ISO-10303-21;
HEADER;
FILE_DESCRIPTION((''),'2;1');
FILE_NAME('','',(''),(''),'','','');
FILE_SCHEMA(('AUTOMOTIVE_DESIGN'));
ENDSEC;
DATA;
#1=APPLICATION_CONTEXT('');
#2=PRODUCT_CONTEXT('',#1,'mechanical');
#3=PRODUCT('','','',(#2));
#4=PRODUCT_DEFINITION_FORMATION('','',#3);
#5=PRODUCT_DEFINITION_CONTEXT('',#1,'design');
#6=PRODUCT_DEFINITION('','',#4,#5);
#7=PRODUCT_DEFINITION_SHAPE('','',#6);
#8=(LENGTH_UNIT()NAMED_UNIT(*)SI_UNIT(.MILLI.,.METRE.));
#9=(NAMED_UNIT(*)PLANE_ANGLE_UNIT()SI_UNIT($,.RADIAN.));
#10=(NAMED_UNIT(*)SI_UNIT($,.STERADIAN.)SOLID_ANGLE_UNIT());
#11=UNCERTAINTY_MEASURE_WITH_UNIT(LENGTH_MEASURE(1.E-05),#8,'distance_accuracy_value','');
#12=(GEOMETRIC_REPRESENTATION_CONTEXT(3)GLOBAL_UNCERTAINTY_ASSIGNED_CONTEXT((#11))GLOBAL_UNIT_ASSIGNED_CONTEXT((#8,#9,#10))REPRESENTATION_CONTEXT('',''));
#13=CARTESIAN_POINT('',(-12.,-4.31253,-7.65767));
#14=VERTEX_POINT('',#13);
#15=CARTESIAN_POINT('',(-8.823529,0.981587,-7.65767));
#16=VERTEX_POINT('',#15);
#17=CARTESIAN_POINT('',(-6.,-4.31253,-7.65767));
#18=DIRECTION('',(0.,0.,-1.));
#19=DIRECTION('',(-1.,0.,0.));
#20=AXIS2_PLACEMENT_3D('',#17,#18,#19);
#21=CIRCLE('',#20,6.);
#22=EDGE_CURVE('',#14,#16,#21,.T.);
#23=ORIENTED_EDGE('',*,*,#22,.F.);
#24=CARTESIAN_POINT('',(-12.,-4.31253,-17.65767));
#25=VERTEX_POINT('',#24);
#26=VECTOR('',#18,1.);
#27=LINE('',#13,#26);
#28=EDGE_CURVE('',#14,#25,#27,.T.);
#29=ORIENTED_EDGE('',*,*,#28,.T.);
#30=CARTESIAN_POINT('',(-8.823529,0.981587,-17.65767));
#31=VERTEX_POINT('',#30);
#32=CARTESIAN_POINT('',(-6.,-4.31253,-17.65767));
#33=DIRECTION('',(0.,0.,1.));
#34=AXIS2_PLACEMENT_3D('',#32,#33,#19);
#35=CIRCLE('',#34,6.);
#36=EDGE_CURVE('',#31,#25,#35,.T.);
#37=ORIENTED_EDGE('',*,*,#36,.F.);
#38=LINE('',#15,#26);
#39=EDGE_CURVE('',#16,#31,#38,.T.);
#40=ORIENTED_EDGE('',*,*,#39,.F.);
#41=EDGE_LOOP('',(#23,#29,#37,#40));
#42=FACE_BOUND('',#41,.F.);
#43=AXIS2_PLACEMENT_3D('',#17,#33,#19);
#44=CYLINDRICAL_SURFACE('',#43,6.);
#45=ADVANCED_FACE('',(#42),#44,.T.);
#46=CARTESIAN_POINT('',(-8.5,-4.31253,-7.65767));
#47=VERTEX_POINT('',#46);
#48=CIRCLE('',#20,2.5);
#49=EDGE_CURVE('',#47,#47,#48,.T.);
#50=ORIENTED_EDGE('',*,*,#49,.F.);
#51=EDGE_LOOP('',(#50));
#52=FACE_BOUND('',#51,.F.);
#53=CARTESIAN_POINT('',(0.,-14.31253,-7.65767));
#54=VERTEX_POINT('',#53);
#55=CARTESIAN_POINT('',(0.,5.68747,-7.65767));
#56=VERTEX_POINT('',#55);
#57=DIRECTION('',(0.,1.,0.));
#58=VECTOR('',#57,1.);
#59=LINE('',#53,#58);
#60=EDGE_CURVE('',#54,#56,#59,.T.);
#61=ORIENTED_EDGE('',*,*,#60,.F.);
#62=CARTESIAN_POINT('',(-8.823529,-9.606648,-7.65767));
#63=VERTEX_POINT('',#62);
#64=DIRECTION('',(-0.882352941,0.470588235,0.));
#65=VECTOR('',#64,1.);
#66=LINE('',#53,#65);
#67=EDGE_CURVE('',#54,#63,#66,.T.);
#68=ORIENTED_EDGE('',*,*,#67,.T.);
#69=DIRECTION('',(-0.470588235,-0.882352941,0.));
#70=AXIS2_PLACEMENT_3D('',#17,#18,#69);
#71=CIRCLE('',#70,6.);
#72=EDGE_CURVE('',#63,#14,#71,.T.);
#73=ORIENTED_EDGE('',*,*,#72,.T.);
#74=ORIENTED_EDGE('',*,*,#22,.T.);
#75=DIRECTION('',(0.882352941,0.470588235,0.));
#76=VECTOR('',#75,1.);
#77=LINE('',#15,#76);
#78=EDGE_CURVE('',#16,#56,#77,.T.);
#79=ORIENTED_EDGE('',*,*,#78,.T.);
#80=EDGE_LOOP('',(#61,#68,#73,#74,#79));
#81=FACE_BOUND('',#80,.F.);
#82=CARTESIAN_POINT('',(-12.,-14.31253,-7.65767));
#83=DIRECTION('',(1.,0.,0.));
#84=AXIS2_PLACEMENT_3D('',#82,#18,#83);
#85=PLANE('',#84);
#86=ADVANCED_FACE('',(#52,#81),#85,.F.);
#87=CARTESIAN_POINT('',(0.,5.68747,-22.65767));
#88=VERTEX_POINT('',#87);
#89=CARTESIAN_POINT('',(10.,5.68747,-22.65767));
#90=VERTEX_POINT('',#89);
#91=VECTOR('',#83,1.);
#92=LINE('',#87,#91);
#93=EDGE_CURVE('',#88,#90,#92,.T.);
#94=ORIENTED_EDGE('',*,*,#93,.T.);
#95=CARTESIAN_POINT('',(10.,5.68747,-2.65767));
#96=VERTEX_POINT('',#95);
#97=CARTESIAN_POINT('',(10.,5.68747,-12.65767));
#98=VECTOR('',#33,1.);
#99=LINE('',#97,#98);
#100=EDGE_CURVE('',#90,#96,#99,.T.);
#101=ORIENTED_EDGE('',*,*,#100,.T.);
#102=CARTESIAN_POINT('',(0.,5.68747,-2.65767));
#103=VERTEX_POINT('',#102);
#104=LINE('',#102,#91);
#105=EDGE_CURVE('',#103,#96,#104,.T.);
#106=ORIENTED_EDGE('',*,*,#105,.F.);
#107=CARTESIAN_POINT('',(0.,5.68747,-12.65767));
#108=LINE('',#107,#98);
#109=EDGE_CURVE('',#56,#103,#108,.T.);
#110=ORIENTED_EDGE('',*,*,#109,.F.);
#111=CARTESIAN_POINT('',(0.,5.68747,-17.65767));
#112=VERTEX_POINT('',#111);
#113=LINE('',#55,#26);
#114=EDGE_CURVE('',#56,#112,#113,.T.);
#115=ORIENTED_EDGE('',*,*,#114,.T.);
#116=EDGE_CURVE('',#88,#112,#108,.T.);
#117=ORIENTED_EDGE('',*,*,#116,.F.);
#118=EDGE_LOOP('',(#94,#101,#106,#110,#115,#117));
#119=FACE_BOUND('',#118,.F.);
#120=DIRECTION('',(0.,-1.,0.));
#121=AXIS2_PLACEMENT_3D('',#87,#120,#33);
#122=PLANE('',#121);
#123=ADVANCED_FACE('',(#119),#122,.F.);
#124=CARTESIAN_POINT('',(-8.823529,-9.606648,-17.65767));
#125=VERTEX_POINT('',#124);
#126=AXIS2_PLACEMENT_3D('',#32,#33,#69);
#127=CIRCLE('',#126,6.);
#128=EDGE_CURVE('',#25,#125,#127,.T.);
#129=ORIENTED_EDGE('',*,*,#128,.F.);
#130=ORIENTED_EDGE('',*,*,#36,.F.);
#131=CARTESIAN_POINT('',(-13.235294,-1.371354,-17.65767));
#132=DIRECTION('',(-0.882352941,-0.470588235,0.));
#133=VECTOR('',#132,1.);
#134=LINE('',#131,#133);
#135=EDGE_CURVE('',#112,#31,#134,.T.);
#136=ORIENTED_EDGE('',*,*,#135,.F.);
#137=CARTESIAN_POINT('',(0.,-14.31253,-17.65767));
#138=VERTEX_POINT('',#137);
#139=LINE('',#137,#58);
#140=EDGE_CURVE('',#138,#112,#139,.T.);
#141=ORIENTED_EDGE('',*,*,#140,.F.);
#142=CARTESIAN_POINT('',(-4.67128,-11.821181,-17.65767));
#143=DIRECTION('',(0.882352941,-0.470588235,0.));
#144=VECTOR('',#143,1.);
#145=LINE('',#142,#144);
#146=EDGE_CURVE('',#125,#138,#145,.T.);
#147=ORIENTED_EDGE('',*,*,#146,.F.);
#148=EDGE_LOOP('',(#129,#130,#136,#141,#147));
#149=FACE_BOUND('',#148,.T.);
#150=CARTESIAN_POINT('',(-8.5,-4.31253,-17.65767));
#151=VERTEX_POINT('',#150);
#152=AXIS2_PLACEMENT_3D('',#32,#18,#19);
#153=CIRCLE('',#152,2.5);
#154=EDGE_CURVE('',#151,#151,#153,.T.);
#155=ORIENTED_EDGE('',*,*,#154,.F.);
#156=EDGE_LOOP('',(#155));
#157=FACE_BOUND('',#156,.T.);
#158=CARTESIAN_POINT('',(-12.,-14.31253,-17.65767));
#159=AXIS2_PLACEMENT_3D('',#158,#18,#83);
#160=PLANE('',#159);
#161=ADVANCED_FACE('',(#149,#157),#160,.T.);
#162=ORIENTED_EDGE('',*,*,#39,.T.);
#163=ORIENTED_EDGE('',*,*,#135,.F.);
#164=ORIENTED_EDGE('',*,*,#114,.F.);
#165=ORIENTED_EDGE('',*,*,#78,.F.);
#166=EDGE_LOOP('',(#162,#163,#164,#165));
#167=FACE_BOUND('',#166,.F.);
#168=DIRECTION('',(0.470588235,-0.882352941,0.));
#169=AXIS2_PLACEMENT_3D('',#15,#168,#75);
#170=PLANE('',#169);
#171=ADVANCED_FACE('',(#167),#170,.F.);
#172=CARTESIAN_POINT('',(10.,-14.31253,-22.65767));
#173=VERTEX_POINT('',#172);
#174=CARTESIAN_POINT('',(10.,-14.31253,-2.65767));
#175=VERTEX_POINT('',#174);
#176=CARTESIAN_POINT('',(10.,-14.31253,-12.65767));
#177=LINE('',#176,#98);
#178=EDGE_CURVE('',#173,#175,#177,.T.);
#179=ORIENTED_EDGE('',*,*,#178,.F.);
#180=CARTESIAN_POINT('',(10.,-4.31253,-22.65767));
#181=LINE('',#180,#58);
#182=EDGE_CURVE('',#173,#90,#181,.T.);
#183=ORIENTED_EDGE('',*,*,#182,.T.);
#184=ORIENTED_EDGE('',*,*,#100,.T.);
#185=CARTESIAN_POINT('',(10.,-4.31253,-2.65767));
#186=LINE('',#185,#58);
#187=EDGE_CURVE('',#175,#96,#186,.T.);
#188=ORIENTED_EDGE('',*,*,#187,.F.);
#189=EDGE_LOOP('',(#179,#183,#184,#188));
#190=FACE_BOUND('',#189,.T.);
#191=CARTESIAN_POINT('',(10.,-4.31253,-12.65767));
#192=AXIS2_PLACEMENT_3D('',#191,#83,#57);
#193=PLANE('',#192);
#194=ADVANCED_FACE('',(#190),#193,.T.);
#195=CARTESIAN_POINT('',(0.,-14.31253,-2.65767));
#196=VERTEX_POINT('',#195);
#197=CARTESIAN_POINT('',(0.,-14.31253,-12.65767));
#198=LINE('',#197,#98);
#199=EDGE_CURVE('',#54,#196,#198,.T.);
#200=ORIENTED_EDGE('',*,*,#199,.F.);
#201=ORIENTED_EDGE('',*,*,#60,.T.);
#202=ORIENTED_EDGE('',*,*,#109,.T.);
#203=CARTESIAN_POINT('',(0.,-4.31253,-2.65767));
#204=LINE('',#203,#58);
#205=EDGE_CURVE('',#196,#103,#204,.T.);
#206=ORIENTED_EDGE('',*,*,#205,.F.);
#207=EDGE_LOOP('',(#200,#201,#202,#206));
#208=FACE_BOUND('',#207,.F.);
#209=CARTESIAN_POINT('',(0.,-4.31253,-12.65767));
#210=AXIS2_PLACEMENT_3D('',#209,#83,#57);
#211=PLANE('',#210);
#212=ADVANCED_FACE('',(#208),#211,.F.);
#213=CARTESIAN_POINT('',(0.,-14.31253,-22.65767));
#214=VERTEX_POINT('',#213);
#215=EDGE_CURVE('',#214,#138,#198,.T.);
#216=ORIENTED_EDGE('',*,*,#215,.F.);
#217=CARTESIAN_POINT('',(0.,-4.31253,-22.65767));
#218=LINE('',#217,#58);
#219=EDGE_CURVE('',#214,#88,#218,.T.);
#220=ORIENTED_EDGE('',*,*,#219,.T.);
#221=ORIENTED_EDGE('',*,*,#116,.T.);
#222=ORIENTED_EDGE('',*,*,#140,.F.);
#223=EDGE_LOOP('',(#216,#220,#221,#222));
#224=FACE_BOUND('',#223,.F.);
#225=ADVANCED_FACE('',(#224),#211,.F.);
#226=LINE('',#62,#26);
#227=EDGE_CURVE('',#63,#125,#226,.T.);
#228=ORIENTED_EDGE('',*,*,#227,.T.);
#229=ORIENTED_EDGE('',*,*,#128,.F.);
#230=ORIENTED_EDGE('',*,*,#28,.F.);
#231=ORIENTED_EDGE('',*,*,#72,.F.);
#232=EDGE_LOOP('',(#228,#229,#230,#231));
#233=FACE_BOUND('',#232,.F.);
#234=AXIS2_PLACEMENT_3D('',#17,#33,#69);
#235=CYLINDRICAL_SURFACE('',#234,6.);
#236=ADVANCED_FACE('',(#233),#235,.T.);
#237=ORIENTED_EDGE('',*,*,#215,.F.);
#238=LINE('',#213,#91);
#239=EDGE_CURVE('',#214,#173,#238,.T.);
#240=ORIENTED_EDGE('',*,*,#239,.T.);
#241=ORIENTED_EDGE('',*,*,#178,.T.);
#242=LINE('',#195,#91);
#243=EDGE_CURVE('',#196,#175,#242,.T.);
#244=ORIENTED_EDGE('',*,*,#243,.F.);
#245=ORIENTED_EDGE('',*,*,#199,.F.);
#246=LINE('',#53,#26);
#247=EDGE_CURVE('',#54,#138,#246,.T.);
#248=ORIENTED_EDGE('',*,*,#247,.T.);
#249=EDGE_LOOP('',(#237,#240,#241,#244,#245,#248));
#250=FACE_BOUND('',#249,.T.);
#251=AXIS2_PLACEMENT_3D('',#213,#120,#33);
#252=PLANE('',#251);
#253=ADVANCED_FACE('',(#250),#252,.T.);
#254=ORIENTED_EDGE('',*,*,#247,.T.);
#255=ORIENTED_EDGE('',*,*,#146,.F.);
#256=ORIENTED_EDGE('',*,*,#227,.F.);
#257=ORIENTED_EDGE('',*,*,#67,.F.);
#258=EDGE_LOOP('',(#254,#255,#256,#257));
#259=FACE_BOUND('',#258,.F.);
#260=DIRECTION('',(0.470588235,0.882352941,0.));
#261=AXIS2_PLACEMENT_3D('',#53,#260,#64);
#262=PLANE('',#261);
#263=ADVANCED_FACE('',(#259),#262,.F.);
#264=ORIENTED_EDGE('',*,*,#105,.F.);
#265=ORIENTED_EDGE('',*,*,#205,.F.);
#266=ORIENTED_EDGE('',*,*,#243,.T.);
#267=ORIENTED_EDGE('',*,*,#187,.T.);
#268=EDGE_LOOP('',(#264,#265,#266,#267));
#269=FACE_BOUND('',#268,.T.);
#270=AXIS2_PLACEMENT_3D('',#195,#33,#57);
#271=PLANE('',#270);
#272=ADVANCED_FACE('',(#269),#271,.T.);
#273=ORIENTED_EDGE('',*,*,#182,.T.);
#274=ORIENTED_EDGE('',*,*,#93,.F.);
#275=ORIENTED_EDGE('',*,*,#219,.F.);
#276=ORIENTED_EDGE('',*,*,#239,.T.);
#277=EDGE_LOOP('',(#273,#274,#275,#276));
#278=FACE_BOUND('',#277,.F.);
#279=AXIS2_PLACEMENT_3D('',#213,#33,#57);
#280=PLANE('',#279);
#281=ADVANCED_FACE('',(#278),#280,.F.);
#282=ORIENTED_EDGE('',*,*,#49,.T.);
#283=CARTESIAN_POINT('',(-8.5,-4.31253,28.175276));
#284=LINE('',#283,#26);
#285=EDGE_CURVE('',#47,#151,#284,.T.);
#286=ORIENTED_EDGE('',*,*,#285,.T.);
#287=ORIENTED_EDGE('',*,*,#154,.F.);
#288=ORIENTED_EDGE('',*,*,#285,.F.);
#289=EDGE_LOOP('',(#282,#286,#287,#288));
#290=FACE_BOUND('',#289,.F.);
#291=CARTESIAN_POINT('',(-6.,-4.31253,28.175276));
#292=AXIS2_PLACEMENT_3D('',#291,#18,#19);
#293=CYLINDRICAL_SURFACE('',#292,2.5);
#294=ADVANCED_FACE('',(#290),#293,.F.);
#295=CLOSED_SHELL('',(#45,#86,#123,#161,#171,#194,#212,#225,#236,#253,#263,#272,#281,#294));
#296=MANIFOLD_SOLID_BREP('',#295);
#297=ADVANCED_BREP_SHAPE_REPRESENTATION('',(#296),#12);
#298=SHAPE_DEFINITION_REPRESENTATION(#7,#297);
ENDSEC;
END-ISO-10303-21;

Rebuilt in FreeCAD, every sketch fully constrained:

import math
import FreeCAD as App
import Part
import Sketcher

V = App.Vector
Q = App.Units.Quantity

doc = App.newDocument("Part")
body = doc.addObject("PartDesign::Body", "Body")

# Sketch on YZ plane
sketch1 = doc.addObject("Sketcher::SketchObject", "Sketch")
body.addObject(sketch1)
sketch1.AttachmentSupport = (doc.YZ_Plane, [""])
sketch1.MapMode = "FlatFace"
sketch1.addGeometry([
    Part.LineSegment(V(-14.31253, -2.65767, 0), V(-14.31253, -22.65767, 0)),
    Part.LineSegment(V(-14.31253, -22.65767, 0), V(5.68747, -22.65767, 0)),
    Part.LineSegment(V(5.68747, -22.65767, 0), V(5.68747, -2.65767, 0)),
    Part.LineSegment(V(5.68747, -2.65767, 0), V(-14.31253, -2.65767, 0)),
], False)
sketch1.addConstraint([
    Sketcher.Constraint("Coincident", 0, 2, 1, 1),
    Sketcher.Constraint("Coincident", 1, 2, 2, 1),
    Sketcher.Constraint("Coincident", 2, 2, 3, 1),
    Sketcher.Constraint("Coincident", 3, 2, 0, 1),
    Sketcher.Constraint("Vertical", 0),
    Sketcher.Constraint("Horizontal", 1),
    Sketcher.Constraint("Vertical", 2),
    Sketcher.Constraint("Horizontal", 3),
    Sketcher.Constraint("Equal", 3, 0),
    Sketcher.Constraint("DistanceX", 1, 1, 1, 2, Q("20 mm")),
    Sketcher.Constraint("DistanceX", 0, 2, -1, 1, Q("14.31253 mm")),
    Sketcher.Constraint("DistanceY", 0, 2, -1, 1, Q("22.65767 mm")),
])
pad1 = doc.addObject("PartDesign::Pad", "Pad")
body.addObject(pad1)
pad1.Profile = sketch1
pad1.Length = 10

# Sketch on XZ plane
sketch2 = doc.addObject("Sketcher::SketchObject", "Sketch001")
body.addObject(sketch2)
sketch2.AttachmentSupport = (doc.XZ_Plane, [""])
sketch2.MapMode = "FlatFace"
sketch2.AttachmentOffset = App.Placement(V(0, 0, 14.31253), App.Rotation())
sketch2.addGeometry([
    Part.LineSegment(V(-12, -7.65767, 0), V(-12, -17.65767, 0)),
    Part.LineSegment(V(-12, -17.65767, 0), V(0, -17.65767, 0)),
    Part.LineSegment(V(0, -17.65767, 0), V(0, -7.65767, 0)),
    Part.LineSegment(V(0, -7.65767, 0), V(-12, -7.65767, 0)),
], False)
sketch2.addConstraint([
    Sketcher.Constraint("Coincident", 0, 2, 1, 1),
    Sketcher.Constraint("Coincident", 1, 2, 2, 1),
    Sketcher.Constraint("Coincident", 2, 2, 3, 1),
    Sketcher.Constraint("Coincident", 3, 2, 0, 1),
    Sketcher.Constraint("Vertical", 0),
    Sketcher.Constraint("Horizontal", 1),
    Sketcher.Constraint("Vertical", 2),
    Sketcher.Constraint("Horizontal", 3),
    Sketcher.Constraint("PointOnObject", 1, 2, -2),
    Sketcher.Constraint("DistanceX", 1, 1, 1, 2, Q("12 mm")),
    Sketcher.Constraint("DistanceY", 0, 2, 0, 1, Q("10 mm")),
    Sketcher.Constraint("DistanceY", 0, 2, -1, 1, Q("17.65767 mm")),
])
pad2 = doc.addObject("PartDesign::Pad", "Pad001")
body.addObject(pad2)
pad2.Profile = sketch2
pad2.Length = 20
pad2.Reversed = True

# Sketch on XY plane
sketch3 = doc.addObject("Sketcher::SketchObject", "Sketch002")
body.addObject(sketch3)
sketch3.AttachmentSupport = (doc.XY_Plane, [""])
sketch3.MapMode = "FlatFace"
sketch3.AttachmentOffset = App.Placement(V(0, 0, -7.65767), App.Rotation())
sketch3.addGeometry([
    Part.ArcOfCircle(Part.Circle(V(-6, -4.31253, 0), V(0, 0, 1), 6), math.radians(118.072487), math.radians(180)),  # 0
    Part.LineSegment(V(-8.823529, 0.981587, 0), V(0, 5.68747, 0)),  # 1
    Part.LineSegment(V(0, 5.68747, 0), V(-12, 5.68747, 0)),  # 2
    Part.LineSegment(V(-12, 5.68747, 0), V(-12, -4.31253, 0)),  # 3
    Part.ArcOfCircle(Part.Circle(V(-6, -4.31253, 0), V(0, 0, 1), 6), math.radians(180), math.radians(241.927513)),  # 4
    Part.LineSegment(V(-12, -4.31253, 0), V(-12, -14.31253, 0)),  # 5
    Part.LineSegment(V(-12, -14.31253, 0), V(0, -14.31253, 0)),  # 6
    Part.LineSegment(V(0, -14.31253, 0), V(-8.823529, -9.606648, 0)),  # 7
], False)
sketch3.addConstraint([
    Sketcher.Constraint("Tangent", 0, 1, 1, 1),
    Sketcher.Constraint("Coincident", 1, 2, 2, 1),
    Sketcher.Constraint("Coincident", 2, 2, 3, 1),
    Sketcher.Constraint("Tangent", 3, 2, 0, 2),
    Sketcher.Constraint("Tangent", 4, 1, 5, 1),
    Sketcher.Constraint("Coincident", 5, 2, 6, 1),
    Sketcher.Constraint("Coincident", 6, 2, 7, 1),
    Sketcher.Constraint("Tangent", 7, 2, 4, 2),
    Sketcher.Constraint("Horizontal", 2),
    Sketcher.Constraint("Vertical", 3),
    Sketcher.Constraint("Vertical", 5),
    Sketcher.Constraint("Horizontal", 6),
    Sketcher.Constraint("Coincident", 4, 3, 0, 3),
    Sketcher.Constraint("Equal", 0, 4),
    Sketcher.Constraint("PointOnObject", 1, 2, -2),
    Sketcher.Constraint("PointOnObject", 6, 2, -2),
    Sketcher.Constraint("Vertical", 0, 1, 7, 2),
    Sketcher.Constraint("Radius", 0, Q("6 mm")),
    Sketcher.Constraint("DistanceX", 2, 2, 2, 1, Q("12 mm")),
    Sketcher.Constraint("DistanceY", 3, 2, 3, 1, Q("10 mm")),
    Sketcher.Constraint("DistanceY", 0, 3, -1, 1, Q("4.31253 mm")),
])
pocket1 = doc.addObject("PartDesign::Pocket", "Pocket")
body.addObject(pocket1)
pocket1.Profile = sketch3
pocket1.Length = 25

# Sketch on XY plane
sketch4 = doc.addObject("Sketcher::SketchObject", "Sketch003")
body.addObject(sketch4)
sketch4.AttachmentSupport = (doc.XY_Plane, [""])
sketch4.MapMode = "FlatFace"
sketch4.AttachmentOffset = App.Placement(V(0, 0, -7.65767), App.Rotation())
sketch4.addGeometry(Part.Circle(V(-6, -4.31253, 0), V(0, 0, 1), 2.5), False)
sketch4.addConstraint([
    Sketcher.Constraint("Diameter", 0, Q("5 mm")),
    Sketcher.Constraint("DistanceX", 0, 3, -1, 1, Q("6 mm")),
    Sketcher.Constraint("DistanceY", 0, 3, -1, 1, Q("4.31253 mm")),
])
doc.recompute()
hole = doc.addObject("PartDesign::Hole", "Hole")
body.addObject(hole)
hole.Profile = sketch4
hole.ThreadType = "None"
hole.Diameter = 5
hole.DepthType = "ThroughAll"

doc.recompute()
